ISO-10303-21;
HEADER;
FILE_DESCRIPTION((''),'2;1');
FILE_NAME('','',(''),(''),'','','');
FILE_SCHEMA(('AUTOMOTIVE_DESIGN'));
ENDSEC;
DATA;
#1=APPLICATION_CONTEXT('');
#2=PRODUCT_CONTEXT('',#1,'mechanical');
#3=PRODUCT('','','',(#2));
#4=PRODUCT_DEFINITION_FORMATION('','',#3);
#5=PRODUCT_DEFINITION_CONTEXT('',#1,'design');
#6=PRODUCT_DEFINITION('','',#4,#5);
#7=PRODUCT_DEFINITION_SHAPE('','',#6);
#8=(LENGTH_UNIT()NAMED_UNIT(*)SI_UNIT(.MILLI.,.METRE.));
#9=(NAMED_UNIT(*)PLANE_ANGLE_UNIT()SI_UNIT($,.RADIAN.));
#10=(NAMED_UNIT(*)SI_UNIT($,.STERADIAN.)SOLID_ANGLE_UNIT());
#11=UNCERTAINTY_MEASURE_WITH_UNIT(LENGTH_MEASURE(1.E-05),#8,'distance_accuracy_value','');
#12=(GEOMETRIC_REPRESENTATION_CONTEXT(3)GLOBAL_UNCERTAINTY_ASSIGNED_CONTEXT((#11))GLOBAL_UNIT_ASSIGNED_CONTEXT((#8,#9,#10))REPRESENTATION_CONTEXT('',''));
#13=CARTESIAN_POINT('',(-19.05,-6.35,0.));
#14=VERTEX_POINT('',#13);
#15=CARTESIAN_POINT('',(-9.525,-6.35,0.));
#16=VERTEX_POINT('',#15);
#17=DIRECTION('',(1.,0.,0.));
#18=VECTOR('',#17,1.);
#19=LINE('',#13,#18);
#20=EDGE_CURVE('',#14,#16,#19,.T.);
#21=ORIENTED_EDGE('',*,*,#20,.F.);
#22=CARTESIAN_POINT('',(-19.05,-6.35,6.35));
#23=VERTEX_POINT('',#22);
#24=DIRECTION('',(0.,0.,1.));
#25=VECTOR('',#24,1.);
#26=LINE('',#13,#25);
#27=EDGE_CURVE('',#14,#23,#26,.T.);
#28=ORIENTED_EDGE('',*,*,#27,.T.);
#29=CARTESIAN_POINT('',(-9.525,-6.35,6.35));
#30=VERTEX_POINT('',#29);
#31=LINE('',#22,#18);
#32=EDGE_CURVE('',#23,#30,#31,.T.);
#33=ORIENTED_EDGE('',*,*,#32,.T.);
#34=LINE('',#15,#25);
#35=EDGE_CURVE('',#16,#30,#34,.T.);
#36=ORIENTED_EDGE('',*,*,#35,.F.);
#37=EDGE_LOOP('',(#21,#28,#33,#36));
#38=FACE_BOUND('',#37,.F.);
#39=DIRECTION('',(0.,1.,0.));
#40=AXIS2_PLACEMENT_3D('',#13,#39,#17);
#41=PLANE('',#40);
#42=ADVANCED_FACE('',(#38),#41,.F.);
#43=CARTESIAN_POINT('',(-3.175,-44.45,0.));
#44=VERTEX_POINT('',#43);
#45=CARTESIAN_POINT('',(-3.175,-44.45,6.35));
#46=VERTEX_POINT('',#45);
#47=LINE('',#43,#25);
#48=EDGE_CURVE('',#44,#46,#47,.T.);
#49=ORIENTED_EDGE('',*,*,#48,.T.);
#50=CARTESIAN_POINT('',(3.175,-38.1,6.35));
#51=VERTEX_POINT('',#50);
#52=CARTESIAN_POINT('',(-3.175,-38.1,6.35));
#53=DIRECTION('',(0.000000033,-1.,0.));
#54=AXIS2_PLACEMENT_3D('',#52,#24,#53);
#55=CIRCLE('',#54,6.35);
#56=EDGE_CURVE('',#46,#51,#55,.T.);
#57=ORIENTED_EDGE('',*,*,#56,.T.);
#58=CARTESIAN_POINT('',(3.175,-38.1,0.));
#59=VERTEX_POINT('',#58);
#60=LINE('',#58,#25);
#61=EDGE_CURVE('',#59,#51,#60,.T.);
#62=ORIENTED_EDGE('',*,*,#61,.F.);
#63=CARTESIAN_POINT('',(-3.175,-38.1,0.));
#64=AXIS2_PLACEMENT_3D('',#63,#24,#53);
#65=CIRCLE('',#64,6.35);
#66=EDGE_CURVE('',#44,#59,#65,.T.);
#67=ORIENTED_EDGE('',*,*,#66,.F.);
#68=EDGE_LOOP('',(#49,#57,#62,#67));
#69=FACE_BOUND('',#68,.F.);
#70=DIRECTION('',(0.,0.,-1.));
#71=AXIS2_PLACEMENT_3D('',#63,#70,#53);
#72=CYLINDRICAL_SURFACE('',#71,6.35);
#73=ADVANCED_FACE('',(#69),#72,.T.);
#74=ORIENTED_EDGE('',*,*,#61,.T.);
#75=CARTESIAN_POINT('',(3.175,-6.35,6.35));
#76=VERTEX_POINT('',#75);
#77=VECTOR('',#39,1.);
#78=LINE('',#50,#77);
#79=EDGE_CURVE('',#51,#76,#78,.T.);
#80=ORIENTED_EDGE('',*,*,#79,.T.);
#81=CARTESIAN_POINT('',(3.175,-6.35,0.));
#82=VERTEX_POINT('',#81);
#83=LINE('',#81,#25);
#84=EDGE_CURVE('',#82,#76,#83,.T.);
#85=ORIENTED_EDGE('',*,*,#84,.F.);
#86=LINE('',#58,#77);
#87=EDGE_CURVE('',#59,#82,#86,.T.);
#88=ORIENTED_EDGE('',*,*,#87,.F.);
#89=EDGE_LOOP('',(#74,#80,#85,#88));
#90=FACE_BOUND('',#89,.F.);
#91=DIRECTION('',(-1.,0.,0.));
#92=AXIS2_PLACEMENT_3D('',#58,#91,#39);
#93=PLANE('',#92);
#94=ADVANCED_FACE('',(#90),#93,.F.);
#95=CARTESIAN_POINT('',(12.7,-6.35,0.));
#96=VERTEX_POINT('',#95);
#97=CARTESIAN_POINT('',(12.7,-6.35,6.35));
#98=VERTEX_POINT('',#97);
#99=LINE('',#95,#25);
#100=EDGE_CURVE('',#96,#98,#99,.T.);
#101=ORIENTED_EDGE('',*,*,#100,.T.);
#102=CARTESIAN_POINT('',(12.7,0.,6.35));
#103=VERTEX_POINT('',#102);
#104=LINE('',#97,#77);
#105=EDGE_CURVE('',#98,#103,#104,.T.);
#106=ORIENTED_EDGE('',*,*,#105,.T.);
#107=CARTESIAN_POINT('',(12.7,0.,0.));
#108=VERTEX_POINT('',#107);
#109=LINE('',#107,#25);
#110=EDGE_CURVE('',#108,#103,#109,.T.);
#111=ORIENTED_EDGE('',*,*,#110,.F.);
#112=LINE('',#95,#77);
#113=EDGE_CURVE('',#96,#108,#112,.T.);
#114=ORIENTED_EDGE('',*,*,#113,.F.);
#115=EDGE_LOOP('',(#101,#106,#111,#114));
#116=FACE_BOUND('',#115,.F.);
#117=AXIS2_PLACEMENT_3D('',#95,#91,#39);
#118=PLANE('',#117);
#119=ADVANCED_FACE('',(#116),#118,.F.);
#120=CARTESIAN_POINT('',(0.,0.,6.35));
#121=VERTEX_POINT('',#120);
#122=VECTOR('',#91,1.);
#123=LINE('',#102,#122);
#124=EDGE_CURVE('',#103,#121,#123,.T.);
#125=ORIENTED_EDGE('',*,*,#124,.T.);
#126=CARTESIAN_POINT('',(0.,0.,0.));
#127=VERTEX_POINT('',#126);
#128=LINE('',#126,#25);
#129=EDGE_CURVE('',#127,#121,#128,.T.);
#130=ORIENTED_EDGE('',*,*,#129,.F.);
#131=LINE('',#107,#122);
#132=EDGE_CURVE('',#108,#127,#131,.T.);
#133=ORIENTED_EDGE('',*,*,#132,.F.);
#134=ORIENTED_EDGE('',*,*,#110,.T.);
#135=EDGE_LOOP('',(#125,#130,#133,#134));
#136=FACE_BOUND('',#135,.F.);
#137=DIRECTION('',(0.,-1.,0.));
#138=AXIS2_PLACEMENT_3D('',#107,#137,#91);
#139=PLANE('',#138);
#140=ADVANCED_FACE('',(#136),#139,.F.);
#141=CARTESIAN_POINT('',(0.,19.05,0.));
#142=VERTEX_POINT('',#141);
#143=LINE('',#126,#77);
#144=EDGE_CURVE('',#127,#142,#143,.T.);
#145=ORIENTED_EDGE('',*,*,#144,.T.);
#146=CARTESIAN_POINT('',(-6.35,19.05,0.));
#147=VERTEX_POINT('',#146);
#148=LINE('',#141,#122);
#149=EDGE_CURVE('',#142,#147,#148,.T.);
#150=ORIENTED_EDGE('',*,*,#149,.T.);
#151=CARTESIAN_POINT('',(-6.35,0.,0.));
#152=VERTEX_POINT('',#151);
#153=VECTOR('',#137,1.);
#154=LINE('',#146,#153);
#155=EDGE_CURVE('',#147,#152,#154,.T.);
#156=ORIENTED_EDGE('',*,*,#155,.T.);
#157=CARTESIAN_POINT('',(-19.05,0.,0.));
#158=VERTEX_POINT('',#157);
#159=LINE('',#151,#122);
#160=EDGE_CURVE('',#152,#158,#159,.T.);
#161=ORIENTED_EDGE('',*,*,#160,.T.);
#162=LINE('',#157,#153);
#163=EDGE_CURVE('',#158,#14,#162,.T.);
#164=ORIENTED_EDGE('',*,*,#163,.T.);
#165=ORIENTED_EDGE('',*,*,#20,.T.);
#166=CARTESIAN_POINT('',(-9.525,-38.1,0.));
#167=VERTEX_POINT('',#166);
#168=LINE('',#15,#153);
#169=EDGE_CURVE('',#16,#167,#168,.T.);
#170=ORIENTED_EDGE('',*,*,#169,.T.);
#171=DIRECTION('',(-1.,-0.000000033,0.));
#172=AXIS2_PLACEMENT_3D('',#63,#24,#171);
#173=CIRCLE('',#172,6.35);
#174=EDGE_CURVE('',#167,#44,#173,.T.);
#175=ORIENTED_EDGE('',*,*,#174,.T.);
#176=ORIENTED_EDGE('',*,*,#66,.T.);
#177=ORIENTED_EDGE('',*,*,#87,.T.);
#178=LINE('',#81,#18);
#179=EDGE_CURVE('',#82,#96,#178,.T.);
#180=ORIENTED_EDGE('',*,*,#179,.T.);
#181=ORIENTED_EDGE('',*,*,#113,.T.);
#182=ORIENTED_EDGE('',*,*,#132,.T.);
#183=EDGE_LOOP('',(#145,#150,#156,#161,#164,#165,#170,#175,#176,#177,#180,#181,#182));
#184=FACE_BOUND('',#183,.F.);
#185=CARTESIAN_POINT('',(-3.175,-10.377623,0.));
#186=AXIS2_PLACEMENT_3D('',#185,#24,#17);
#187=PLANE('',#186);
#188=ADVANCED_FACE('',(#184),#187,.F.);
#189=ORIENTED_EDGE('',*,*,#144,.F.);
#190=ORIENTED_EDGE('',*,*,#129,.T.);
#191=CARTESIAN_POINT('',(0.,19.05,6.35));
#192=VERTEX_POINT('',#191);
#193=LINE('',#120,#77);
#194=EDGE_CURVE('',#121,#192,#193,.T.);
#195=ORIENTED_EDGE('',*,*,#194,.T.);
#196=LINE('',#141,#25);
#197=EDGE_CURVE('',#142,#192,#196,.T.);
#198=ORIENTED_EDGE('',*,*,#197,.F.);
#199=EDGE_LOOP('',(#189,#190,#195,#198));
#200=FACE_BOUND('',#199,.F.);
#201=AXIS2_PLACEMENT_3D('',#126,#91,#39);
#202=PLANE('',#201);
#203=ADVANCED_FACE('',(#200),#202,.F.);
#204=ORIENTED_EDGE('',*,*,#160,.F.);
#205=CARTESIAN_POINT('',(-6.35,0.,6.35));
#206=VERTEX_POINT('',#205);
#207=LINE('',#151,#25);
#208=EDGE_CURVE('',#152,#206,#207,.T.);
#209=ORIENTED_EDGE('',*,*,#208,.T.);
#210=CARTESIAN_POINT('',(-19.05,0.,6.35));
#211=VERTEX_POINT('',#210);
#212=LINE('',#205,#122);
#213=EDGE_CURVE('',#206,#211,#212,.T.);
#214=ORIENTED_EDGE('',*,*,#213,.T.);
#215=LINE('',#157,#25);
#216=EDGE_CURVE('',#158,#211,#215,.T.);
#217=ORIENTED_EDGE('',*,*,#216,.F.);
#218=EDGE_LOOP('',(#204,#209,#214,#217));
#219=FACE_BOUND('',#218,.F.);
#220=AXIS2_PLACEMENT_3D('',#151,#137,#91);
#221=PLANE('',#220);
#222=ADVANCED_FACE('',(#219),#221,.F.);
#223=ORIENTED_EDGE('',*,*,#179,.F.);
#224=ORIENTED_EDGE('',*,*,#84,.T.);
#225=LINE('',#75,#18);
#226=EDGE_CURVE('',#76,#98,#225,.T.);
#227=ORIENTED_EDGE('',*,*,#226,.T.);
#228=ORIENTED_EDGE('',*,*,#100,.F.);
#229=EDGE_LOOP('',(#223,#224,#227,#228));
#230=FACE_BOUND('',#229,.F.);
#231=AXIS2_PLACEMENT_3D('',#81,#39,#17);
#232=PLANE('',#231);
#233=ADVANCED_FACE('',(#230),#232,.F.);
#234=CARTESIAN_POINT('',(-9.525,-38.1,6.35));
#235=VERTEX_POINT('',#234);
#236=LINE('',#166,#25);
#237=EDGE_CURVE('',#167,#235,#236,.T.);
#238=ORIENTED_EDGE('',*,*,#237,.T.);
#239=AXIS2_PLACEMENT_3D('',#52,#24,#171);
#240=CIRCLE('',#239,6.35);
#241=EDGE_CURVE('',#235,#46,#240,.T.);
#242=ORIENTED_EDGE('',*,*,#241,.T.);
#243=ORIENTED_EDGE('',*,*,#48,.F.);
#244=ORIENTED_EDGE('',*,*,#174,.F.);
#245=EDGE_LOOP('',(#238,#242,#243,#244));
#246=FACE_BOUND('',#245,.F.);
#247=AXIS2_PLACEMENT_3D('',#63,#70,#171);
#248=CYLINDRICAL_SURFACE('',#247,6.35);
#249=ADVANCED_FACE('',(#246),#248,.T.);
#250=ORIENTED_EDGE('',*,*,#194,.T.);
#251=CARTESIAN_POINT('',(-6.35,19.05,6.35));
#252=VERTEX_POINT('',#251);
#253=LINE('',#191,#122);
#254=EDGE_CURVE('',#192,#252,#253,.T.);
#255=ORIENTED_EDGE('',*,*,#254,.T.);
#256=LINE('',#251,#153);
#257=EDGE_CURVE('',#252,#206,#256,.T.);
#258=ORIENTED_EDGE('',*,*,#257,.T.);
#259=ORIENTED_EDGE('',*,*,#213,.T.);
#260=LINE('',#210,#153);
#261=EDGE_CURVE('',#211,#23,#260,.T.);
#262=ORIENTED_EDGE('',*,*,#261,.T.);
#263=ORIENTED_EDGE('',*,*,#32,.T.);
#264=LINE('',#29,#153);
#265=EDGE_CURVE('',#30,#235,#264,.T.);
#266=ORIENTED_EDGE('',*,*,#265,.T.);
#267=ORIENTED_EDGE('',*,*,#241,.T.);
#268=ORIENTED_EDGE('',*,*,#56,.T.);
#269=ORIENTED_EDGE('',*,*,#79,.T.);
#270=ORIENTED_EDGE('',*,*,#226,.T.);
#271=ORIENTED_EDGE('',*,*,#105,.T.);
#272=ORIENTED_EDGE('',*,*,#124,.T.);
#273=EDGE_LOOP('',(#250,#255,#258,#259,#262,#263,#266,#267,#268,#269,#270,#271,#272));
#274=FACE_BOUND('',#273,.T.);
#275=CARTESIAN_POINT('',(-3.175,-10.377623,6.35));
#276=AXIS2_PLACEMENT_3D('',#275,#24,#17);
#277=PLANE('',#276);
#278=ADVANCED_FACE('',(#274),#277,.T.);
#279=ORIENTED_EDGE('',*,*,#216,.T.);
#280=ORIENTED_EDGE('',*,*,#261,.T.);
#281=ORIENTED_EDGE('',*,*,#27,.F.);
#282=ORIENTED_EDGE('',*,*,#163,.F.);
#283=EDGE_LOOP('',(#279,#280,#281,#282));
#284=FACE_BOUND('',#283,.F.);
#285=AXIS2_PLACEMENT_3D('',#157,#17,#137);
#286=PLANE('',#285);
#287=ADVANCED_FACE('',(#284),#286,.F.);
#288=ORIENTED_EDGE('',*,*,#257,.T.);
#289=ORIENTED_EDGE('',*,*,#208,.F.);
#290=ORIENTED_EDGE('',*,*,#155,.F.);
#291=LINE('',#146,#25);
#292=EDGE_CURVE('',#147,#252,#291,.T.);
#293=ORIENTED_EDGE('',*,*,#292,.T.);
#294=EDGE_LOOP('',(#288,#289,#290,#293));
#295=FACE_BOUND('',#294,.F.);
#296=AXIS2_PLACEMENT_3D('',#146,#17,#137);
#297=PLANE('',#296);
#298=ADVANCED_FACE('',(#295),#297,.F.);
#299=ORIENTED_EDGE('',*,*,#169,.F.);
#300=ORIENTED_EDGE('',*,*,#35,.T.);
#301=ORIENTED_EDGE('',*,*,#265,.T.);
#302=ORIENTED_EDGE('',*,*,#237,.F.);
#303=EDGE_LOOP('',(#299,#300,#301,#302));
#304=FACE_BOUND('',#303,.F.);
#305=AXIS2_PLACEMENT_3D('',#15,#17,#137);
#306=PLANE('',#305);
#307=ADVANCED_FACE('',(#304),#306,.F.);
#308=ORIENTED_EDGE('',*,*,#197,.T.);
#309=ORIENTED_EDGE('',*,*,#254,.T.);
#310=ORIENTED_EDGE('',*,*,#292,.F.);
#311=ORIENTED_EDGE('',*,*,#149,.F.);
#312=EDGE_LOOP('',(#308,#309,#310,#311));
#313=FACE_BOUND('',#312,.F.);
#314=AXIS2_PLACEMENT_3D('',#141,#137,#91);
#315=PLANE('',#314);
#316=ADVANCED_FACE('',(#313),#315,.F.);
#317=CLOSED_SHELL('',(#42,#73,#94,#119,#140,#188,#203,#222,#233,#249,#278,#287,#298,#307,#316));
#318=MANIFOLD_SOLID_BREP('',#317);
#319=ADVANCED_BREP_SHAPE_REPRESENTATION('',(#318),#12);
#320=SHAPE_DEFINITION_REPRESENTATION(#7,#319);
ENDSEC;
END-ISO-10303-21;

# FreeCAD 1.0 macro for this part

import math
import FreeCAD as App
import Part
import Sketcher
Q = App.Units.Quantity

doc = App.newDocument("Part")
params = doc.addObject("Spreadsheet::Sheet", "Params")
for row, (alias, value) in enumerate([
    ("sketch1_radius", "0.25 in"),
    ("sketch1_width", "0.5 in"),
    ("sketch1_width2", "0.25 in"),
    ("sketch1_height", "1.25 in"),
    ("pad1_length", "0.25 in"),
], start=1):
    params.set(f"A{row}", alias)
    params.set(f"B{row}", "=" + value)
    params.setAlias(f"B{row}", alias)

body = doc.addObject("PartDesign::Body", "Body")

# Sketch on XY plane
sketch1 = body.newObject("Sketcher::SketchObject", "Sketch")
sketch1.AttachmentSupport = (doc.getObject("XY_Plane"), [""])
sketch1.MapMode = "FlatFace"
sketch1.addGeometry([
    Part.LineSegment(App.Vector(0, 0, 0), App.Vector(0, 19.05, 0)),  # 0
    Part.LineSegment(App.Vector(0, 19.05, 0), App.Vector(-6.35, 19.05, 0)),  # 1
    Part.LineSegment(App.Vector(-6.35, 19.05, 0), App.Vector(-6.35, 0, 0)),  # 2
    Part.LineSegment(App.Vector(-6.35, 0, 0), App.Vector(-19.05, 0, 0)),  # 3
    Part.LineSegment(App.Vector(-19.05, 0, 0), App.Vector(-19.05, -6.35, 0)),  # 4
    Part.LineSegment(App.Vector(-19.05, -6.35, 0), App.Vector(-9.525, -6.35, 0)),  # 5
    Part.LineSegment(App.Vector(-9.525, -6.35, 0), App.Vector(-9.525, -38.1, 0)),  # 6
    Part.ArcOfCircle(Part.Circle(App.Vector(-3.175, -38.1, 0), App.Vector(0, 0, 1), 6.35), math.radians(-179.999998), math.radians(-90.000002)),  # 7
    Part.ArcOfCircle(Part.Circle(App.Vector(-3.175, -38.1, 0), App.Vector(0, 0, 1), 6.35), math.radians(-89.999998), math.radians(-0.000002)),  # 8
    Part.LineSegment(App.Vector(3.175, -38.1, 0), App.Vector(3.175, -6.35, 0)),  # 9
    Part.LineSegment(App.Vector(3.175, -6.35, 0), App.Vector(12.7, -6.35, 0)),  # 10
    Part.LineSegment(App.Vector(12.7, -6.35, 0), App.Vector(12.7, 0, 0)),  # 11
    Part.LineSegment(App.Vector(12.7, 0, 0), App.Vector(0, 0, 0)),  # 12
], False)
sketch1.addConstraint([
    Sketcher.Constraint("Coincident", 0, 2, 1, 1),
    Sketcher.Constraint("Coincident", 1, 2, 2, 1),
    Sketcher.Constraint("Coincident", 2, 2, 3, 1),
    Sketcher.Constraint("Coincident", 3, 2, 4, 1),
    Sketcher.Constraint("Coincident", 4, 2, 5, 1),
    Sketcher.Constraint("Coincident", 5, 2, 6, 1),
    Sketcher.Constraint("Tangent", 6, 2, 7, 1),
    Sketcher.Constraint("Tangent", 7, 2, 8, 1),
    Sketcher.Constraint("Tangent", 8, 2, 9, 1),
    Sketcher.Constraint("Coincident", 9, 2, 10, 1),
    Sketcher.Constraint("Coincident", 10, 2, 11, 1),
    Sketcher.Constraint("Coincident", 11, 2, 12, 1),
    Sketcher.Constraint("Coincident", 12, 2, 0, 1),
    Sketcher.Constraint("Vertical", 0),
    Sketcher.Constraint("Horizontal", 1),
    Sketcher.Constraint("Vertical", 2),
    Sketcher.Constraint("Horizontal", 3),
    Sketcher.Constraint("Vertical", 4),
    Sketcher.Constraint("Horizontal", 5),
    Sketcher.Constraint("Vertical", 6),
    Sketcher.Constraint("Vertical", 9),
    Sketcher.Constraint("Horizontal", 10),
    Sketcher.Constraint("Vertical", 11),
    Sketcher.Constraint("Horizontal", 12),
    Sketcher.Constraint("Coincident", 12, 2, -1, 1),
    Sketcher.Constraint("Equal", 7, 8),
    Sketcher.Constraint("PointOnObject", 2, 2, -1),
    Sketcher.Constraint("Horizontal", 5, 2, 9, 2),
    Sketcher.Constraint("Vertical", 8, 3, 7, 2),
    Sketcher.Constraint("Equal", 5, 10),
    Sketcher.Constraint("Equal", 3, 12),
    Sketcher.Constraint("Equal", 1, 4),
    Sketcher.Constraint("Radius", 7, Q("0.25 in")),
    Sketcher.Constraint("DistanceX", 3, 2, 3, 1, Q("0.5 in")),
    Sketcher.Constraint("DistanceY", 4, 2, 1, 2, Q("1 in")),
    Sketcher.Constraint("DistanceX", 1, 2, 1, 1, Q("0.25 in")),
    Sketcher.Constraint("DistanceY", 6, 2, 6, 1, Q("1.25 in")),
])
sketch1.setExpression("Constraints[32]", "Params.sketch1_radius")
sketch1.setExpression("Constraints[33]", "Params.sketch1_width")
sketch1.setExpression("Constraints[35]", "Params.sketch1_width2")
sketch1.setExpression("Constraints[36]", "Params.sketch1_height")
pad1 = body.newObject("PartDesign::Pad", "Pad")
pad1.Profile = sketch1
pad1.setExpression("Length", "Params.pad1_length")

doc.recompute()
